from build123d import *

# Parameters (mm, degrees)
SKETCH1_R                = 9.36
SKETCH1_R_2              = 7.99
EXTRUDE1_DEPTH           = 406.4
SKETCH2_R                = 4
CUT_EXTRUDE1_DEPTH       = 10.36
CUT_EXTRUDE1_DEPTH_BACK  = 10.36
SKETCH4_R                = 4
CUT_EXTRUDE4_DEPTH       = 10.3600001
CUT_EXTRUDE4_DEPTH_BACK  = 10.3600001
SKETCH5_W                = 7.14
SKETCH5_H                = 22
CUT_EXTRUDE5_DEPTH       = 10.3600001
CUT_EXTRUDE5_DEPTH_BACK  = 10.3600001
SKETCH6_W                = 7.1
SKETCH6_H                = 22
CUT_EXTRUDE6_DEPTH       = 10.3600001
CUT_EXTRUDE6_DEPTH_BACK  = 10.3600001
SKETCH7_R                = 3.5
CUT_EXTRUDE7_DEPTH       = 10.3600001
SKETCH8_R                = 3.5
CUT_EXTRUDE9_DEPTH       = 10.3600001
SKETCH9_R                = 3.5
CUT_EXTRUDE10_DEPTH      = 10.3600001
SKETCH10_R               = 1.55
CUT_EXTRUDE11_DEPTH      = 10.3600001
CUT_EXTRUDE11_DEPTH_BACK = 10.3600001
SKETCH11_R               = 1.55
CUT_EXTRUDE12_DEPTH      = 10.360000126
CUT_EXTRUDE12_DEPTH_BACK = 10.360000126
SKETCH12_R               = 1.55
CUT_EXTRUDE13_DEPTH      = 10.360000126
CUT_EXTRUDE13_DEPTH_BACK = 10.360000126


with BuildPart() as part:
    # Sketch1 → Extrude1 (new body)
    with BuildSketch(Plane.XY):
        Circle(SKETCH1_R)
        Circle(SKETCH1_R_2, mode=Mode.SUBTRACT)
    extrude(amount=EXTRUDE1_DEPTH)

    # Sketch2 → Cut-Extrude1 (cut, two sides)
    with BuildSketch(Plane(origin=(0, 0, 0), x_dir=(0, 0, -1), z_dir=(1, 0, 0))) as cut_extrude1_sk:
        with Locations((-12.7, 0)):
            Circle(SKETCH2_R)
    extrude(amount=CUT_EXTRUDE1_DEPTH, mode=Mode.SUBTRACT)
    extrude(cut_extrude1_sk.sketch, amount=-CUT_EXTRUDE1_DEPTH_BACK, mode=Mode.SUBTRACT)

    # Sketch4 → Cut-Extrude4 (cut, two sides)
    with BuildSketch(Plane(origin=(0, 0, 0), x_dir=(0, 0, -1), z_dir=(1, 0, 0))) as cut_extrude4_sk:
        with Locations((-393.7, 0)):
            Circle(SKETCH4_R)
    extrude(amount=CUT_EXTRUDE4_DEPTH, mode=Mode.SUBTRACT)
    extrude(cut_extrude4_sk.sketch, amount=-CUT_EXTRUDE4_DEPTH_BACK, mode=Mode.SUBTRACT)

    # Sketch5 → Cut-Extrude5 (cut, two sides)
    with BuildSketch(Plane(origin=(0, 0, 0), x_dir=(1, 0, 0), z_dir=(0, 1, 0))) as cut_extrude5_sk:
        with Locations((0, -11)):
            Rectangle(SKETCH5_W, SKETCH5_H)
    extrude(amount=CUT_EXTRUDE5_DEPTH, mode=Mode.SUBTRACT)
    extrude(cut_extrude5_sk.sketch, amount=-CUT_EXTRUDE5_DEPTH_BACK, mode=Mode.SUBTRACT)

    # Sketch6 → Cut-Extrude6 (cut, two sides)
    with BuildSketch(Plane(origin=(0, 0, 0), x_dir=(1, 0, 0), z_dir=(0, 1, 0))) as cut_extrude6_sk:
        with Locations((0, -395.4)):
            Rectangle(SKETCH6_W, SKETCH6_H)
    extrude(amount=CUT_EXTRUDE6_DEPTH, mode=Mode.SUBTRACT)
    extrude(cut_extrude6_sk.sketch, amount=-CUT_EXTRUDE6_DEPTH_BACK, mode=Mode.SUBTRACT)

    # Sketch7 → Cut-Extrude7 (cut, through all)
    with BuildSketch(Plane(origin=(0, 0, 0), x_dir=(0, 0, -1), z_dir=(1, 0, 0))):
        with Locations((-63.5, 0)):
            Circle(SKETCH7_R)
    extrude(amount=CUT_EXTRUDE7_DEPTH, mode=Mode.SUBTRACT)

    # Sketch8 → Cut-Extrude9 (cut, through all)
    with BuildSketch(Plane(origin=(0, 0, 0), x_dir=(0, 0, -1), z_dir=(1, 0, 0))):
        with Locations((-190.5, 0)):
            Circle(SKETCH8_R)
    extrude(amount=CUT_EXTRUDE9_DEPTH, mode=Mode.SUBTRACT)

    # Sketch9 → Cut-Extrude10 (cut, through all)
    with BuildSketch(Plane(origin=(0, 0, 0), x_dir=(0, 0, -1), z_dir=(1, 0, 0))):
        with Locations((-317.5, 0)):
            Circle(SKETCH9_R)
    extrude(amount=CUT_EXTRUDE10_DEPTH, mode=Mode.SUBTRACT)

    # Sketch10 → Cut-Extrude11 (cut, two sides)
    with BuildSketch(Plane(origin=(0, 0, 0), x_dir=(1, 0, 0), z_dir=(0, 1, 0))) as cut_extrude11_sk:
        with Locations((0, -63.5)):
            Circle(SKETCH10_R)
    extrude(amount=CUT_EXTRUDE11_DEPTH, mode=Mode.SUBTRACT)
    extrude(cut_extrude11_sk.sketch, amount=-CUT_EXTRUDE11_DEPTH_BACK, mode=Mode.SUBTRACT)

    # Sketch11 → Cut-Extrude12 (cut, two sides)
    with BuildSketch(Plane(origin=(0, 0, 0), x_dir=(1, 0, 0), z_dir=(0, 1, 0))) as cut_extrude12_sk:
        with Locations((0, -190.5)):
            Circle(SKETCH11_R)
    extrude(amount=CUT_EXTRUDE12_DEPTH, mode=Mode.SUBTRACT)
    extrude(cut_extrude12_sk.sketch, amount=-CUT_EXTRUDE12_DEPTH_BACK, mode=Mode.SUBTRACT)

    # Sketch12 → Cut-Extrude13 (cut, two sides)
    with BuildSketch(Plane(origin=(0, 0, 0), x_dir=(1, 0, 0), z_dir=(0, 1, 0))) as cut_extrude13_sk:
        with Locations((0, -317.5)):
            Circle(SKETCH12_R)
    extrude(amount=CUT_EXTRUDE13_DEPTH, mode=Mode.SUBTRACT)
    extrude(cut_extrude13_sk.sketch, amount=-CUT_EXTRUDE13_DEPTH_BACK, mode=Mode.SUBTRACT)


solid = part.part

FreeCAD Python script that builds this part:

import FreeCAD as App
import Part
import Sketcher

V = App.Vector


def add_polygon(sketch, points):
    """Adds a closed chain of lines whose ends are joined by coincident constraints."""
    first, n = sketch.GeometryCount, len(points)
    for a, b in zip(points, points[1:] + points[:1]):
        sketch.addGeometry(Part.LineSegment(App.Vector(*a, 0), App.Vector(*b, 0)), False)
    for i in range(n):
        sketch.addConstraint(Sketcher.Constraint("Coincident", first + i, 2, first + (i + 1) % n, 1))

doc = App.newDocument("Part")
body = doc.addObject("PartDesign::Body", "Body")

# Sketch on XY plane
sketch1 = body.newObject("Sketcher::SketchObject", "Sketch")
sketch1.AttachmentSupport = (doc.getObject("XY_Plane"), [""])
sketch1.MapMode = "FlatFace"
sketch1.addGeometry([
    Part.Circle(V(0, 0, 0), V(0, 0, 1), 9),
    Part.Circle(V(0, 0, 0), V(0, 0, 1), 8),
], False)
sketch1.addConstraint([
    Sketcher.Constraint("Coincident", 0, 3, -1, 1),
    Sketcher.Constraint("Coincident", 1, 3, -1, 1),
    Sketcher.Constraint("Diameter", 0, 18.72),
    Sketcher.Constraint("Diameter", 1, 15.98),
])
pad1 = body.newObject("PartDesign::Pad", "Pad")
pad1.Profile = sketch1
pad1.Length = 406.4

# Sketch on YZ plane
sketch2 = body.newObject("Sketcher::SketchObject", "Sketch001")
sketch2.AttachmentSupport = (doc.getObject("YZ_Plane"), [""])
sketch2.MapMode = "FlatFace"
sketch2.addGeometry(Part.Circle(V(0, 12.7, 0), V(0, 0, 1), 4), False)
sketch2.addConstraint([
    Sketcher.Constraint("PointOnObject", 0, 3, -2),
    Sketcher.Constraint("Diameter", 0, 8.0),
    Sketcher.Constraint("DistanceY", -1, 1, 0, 3, 12.7),
])
pocket1 = body.newObject("PartDesign::Pocket", "Pocket")
pocket1.Profile = sketch2
pocket1.Type = "ThroughAll"
pocket1.Midplane = True

# Sketch on YZ plane
sketch3 = body.newObject("Sketcher::SketchObject", "Sketch002")
sketch3.AttachmentSupport = (doc.getObject("YZ_Plane"), [""])
sketch3.MapMode = "FlatFace"
sketch3.addGeometry(Part.Circle(V(0, 393.7, 0), V(0, 0, 1), 4), False)
sketch3.addConstraint([
    Sketcher.Constraint("PointOnObject", 0, 3, -2),
    Sketcher.Constraint("Diameter", 0, 8.0),
    Sketcher.Constraint("DistanceY", -1, 1, 0, 3, 393.7),
])
pocket2 = body.newObject("PartDesign::Pocket", "Pocket001")
pocket2.Profile = sketch3
pocket2.Type = "ThroughAll"
pocket2.Midplane = True

# Sketch on XZ plane
sketch4 = body.newObject("Sketcher::SketchObject", "Sketch003")
sketch4.AttachmentSupport = (doc.getObject("XZ_Plane"), [""])
sketch4.MapMode = "FlatFace"
add_polygon(sketch4, [(-4, 0), (-4, 22), (4, 22), (4, 0)])  # lines 0-3
sketch4.addConstraint([
    Sketcher.Constraint("Vertical", 0),
    Sketcher.Constraint("Horizontal", 1),
    Sketcher.Constraint("Vertical", 2),
    Sketcher.Constraint("Horizontal", 3),
    Sketcher.Constraint("Symmetric", 2, 2, 3, 2, -1, 1),
    Sketcher.Constraint("DistanceY", 0, 1, 0, 2, 22.0),
    Sketcher.Constraint("DistanceX", 1, 1, 1, 2, 7.14),
])
pocket3 = body.newObject("PartDesign::Pocket", "Pocket002")
pocket3.Profile = sketch4
pocket3.Type = "ThroughAll"
pocket3.Midplane = True

# Sketch on XZ plane
sketch5 = body.newObject("Sketcher::SketchObject", "Sketch004")
sketch5.AttachmentSupport = (doc.getObject("XZ_Plane"), [""])
sketch5.MapMode = "FlatFace"
add_polygon(sketch5, [(-4, 384), (-4, 406), (4, 406), (4, 384)])  # lines 0-3
sketch5.addConstraint([
    Sketcher.Constraint("Vertical", 0),
    Sketcher.Constraint("Horizontal", 1),
    Sketcher.Constraint("Vertical", 2),
    Sketcher.Constraint("Horizontal", 3),
    Sketcher.Constraint("DistanceY", 0, 1, 0, 2, 22.0),
    Sketcher.Constraint("DistanceX", 1, 1, 1, 2, 7.1),
    Sketcher.Constraint("DistanceY", -1, 1, 0, 2, 406.4),
    Sketcher.Constraint("DistanceX", 0, 2, -1, 1, 3.55),
])
pocket4 = body.newObject("PartDesign::Pocket", "Pocket003")
pocket4.Profile = sketch5
pocket4.Type = "ThroughAll"
pocket4.Midplane = True

# Sketch on YZ plane
sketch6 = body.newObject("Sketcher::SketchObject", "Sketch005")
sketch6.AttachmentSupport = (doc.getObject("YZ_Plane"), [""])
sketch6.MapMode = "FlatFace"
sketch6.addGeometry(Part.Circle(V(0, 63.5, 0), V(0, 0, 1), 3.5), False)
sketch6.addConstraint([
    Sketcher.Constraint("PointOnObject", 0, 3, -2),
    Sketcher.Constraint("Diameter", 0, 7.0),
    Sketcher.Constraint("DistanceY", -1, 1, 0, 3, 63.5),
])
pocket5 = body.newObject("PartDesign::Pocket", "Pocket004")
pocket5.Profile = sketch6
pocket5.Type = "ThroughAll"
pocket5.Reversed = True

# Sketch on YZ plane
sketch7 = body.newObject("Sketcher::SketchObject", "Sketch006")
sketch7.AttachmentSupport = (doc.getObject("YZ_Plane"), [""])
sketch7.MapMode = "FlatFace"
sketch7.addGeometry(Part.Circle(V(0, 190.5, 0), V(0, 0, 1), 3.5), False)
sketch7.addConstraint([
    Sketcher.Constraint("PointOnObject", 0, 3, -2),
    Sketcher.Constraint("Diameter", 0, 7.0),
    Sketcher.Constraint("DistanceY", -1, 1, 0, 3, 190.5),
])
pocket6 = body.newObject("PartDesign::Pocket", "Pocket005")
pocket6.Profile = sketch7
pocket6.Type = "ThroughAll"
pocket6.Reversed = True

# Sketch on YZ plane
sketch8 = body.newObject("Sketcher::SketchObject", "Sketch007")
sketch8.AttachmentSupport = (doc.getObject("YZ_Plane"), [""])
sketch8.MapMode = "FlatFace"
sketch8.addGeometry(Part.Circle(V(0, 317.5, 0), V(0, 0, 1), 3.5), False)
sketch8.addConstraint([
    Sketcher.Constraint("PointOnObject", 0, 3, -2),
    Sketcher.Constraint("Diameter", 0, 7.0),
    Sketcher.Constraint("DistanceY", -1, 1, 0, 3, 317.5),
])
pocket7 = body.newObject("PartDesign::Pocket", "Pocket006")
pocket7.Profile = sketch8
pocket7.Type = "ThroughAll"
pocket7.Reversed = True

# Sketch on XZ plane
sketch9 = body.newObject("Sketcher::SketchObject", "Sketch008")
sketch9.AttachmentSupport = (doc.getObject("XZ_Plane"), [""])
sketch9.MapMode = "FlatFace"
sketch9.addGeometry(Part.Circle(V(0, 63.5, 0), V(0, 0, 1), 1.6), False)
sketch9.addConstraint([
    Sketcher.Constraint("PointOnObject", 0, 3, -2),
    Sketcher.Constraint("Diameter", 0, 3.1),
    Sketcher.Constraint("DistanceY", -1, 1, 0, 3, 63.5),
])
pocket8 = body.newObject("PartDesign::Pocket", "Pocket007")
pocket8.Profile = sketch9
pocket8.Type = "ThroughAll"
pocket8.Midplane = True

# Sketch on XZ plane
sketch10 = body.newObject("Sketcher::SketchObject", "Sketch009")
sketch10.AttachmentSupport = (doc.getObject("XZ_Plane"), [""])
sketch10.MapMode = "FlatFace"
sketch10.addGeometry(Part.Circle(V(0, 190.5, 0), V(0, 0, 1), 1.6), False)
sketch10.addConstraint([
    Sketcher.Constraint("PointOnObject", 0, 3, -2),
    Sketcher.Constraint("Diameter", 0, 3.1),
    Sketcher.Constraint("DistanceY", -1, 1, 0, 3, 190.5),
])
pocket9 = body.newObject("PartDesign::Pocket", "Pocket008")
pocket9.Profile = sketch10
pocket9.Type = "ThroughAll"
pocket9.Midplane = True

# Sketch on XZ plane
sketch11 = body.newObject("Sketcher::SketchObject", "Sketch010")
sketch11.AttachmentSupport = (doc.getObject("XZ_Plane"), [""])
sketch11.MapMode = "FlatFace"
sketch11.addGeometry(Part.Circle(V(0, 317.5, 0), V(0, 0, 1), 1.6), False)
sketch11.addConstraint([
    Sketcher.Constraint("PointOnObject", 0, 3, -2),
    Sketcher.Constraint("Diameter", 0, 3.1),
    Sketcher.Constraint("DistanceY", -1, 1, 0, 3, 317.5),
])
pocket10 = body.newObject("PartDesign::Pocket", "Pocket009")
pocket10.Profile = sketch11
pocket10.Type = "ThroughAll"
pocket10.Midplane = True

doc.recompute()
